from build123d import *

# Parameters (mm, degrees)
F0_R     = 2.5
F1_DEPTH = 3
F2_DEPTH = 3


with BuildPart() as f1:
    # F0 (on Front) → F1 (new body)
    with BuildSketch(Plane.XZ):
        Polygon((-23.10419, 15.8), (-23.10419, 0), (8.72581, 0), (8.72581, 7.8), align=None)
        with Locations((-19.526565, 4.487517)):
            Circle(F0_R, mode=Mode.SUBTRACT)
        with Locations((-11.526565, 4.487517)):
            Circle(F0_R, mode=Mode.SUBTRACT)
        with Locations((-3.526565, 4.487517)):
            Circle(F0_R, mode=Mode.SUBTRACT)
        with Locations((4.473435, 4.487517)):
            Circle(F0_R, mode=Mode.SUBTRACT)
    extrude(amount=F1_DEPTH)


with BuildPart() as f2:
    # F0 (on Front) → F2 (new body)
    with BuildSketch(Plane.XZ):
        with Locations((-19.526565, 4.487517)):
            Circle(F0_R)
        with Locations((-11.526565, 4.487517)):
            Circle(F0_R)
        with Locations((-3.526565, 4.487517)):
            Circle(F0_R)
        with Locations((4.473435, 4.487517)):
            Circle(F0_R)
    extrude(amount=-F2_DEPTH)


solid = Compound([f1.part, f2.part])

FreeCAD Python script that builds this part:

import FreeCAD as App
import Part
import Sketcher


def add_polygon(sketch, points):
    """Adds a closed chain of lines whose ends are joined by coincident constraints."""
    first, n = sketch.GeometryCount, len(points)
    for a, b in zip(points, points[1:] + points[:1]):
        sketch.addGeometry(Part.LineSegment(App.Vector(*a, 0), App.Vector(*b, 0)), False)
    for i in range(n):
        sketch.addConstraint(Sketcher.Constraint("Coincident", first + i, 2, first + (i + 1) % n, 1))

doc = App.newDocument("Part")
body = doc.addObject("PartDesign::Body", "Body")

# Sketch on XZ plane
sketch1 = body.newObject("Sketcher::SketchObject", "Sketch")
sketch1.AttachmentSupport = (doc.getObject("XZ_Plane"), [""])
sketch1.MapMode = "FlatFace"
add_polygon(sketch1, [(-23.1, 15.8), (-23.1, 0), (8.7, 0), (8.7, 7.8)])  # lines 0-3
sketch1.addGeometry(Part.Circle(App.Vector(-19.5, 4.5, 0), App.Vector(0, 0, 1), 2.5), False)  # 4
sketch1.addGeometry(Part.Circle(App.Vector(-11.5, 4.5, 0), App.Vector(0, 0, 1), 2.5), False)  # 5
sketch1.addGeometry(Part.Circle(App.Vector(-3.5, 4.5, 0), App.Vector(0, 0, 1), 2.5), False)  # 6
sketch1.addGeometry(Part.Circle(App.Vector(4.5, 4.5, 0), App.Vector(0, 0, 1), 2.5), False)  # 7
sketch1.addConstraint([
    Sketcher.Constraint("Vertical", 0),
    Sketcher.Constraint("Horizontal", 1),
    Sketcher.Constraint("Vertical", 2),
    Sketcher.Constraint("Equal", 4, 5),
    Sketcher.Constraint("Equal", 5, 6),
    Sketcher.Constraint("Equal", 6, 7),
    Sketcher.Constraint("PointOnObject", 0, 2, -1),
    Sketcher.Constraint("Horizontal", 4, 3, 5, 3),
    Sketcher.Constraint("Horizontal", 5, 3, 6, 3),
    Sketcher.Constraint("Horizontal", 6, 3, 7, 3),
    Sketcher.Constraint("Diameter", 4, 5.0),
    Sketcher.Constraint("DistanceY", 0, 2, 0, 1, 15.8),
    Sketcher.Constraint("DistanceY", 2, 1, 2, 2, 7.8),
    Sketcher.Constraint("DistanceX", 4, 3, 5, 3, 8.0),
    Sketcher.Constraint("DistanceX", 5, 3, 6, 3, 8.0),
    Sketcher.Constraint("DistanceX", 6, 3, 7, 3, 8.0),
    Sketcher.Constraint("DistanceX", 1, 1, 1, 2, 31.83),
    Sketcher.Constraint("DistanceX", 0, 2, -1, 1, 23.10419),
    Sketcher.Constraint("DistanceX", 4, 3, -1, 1, 19.526565),
    Sketcher.Constraint("DistanceY", -1, 1, 4, 3, 4.487517),
])
pad1 = body.newObject("PartDesign::Pad", "Pad")
pad1.Profile = sketch1
pad1.Length = 3
body2 = doc.addObject("PartDesign::Body", "Body001")
body2.AllowCompound = True

# Sketch on XZ plane
sketch2 = body2.newObject("Sketcher::SketchObject", "Sketch001")
sketch2.AttachmentSupport = (doc.getObject("XZ_Plane001"), [""])
sketch2.MapMode = "FlatFace"
sketch2.addGeometry([
    Part.Circle(App.Vector(-19.5, 4.5, 0), App.Vector(0, 0, 1), 2.5),
    Part.Circle(App.Vector(-11.5, 4.5, 0), App.Vector(0, 0, 1), 2.5),
    Part.Circle(App.Vector(-3.5, 4.5, 0), App.Vector(0, 0, 1), 2.5),
    Part.Circle(App.Vector(4.5, 4.5, 0), App.Vector(0, 0, 1), 2.5),
], False)
sketch2.addConstraint([
    Sketcher.Constraint("Equal", 0, 1),
    Sketcher.Constraint("Equal", 1, 2),
    Sketcher.Constraint("Equal", 2, 3),
    Sketcher.Constraint("Horizontal", 0, 3, 1, 3),
    Sketcher.Constraint("Horizontal", 1, 3, 2, 3),
    Sketcher.Constraint("Horizontal", 2, 3, 3, 3),
    Sketcher.Constraint("Diameter", 0, 5.0),
    Sketcher.Constraint("DistanceX", 0, 3, 1, 3, 8.0),
    Sketcher.Constraint("DistanceX", 1, 3, 2, 3, 8.0),
    Sketcher.Constraint("DistanceX", 2, 3, 3, 3, 8.0),
    Sketcher.Constraint("DistanceX", 0, 3, -1, 1, 19.526565),
    Sketcher.Constraint("DistanceY", -1, 1, 0, 3, 4.487517),
])
pad2 = body2.newObject("PartDesign::Pad", "Pad001")
pad2.Profile = sketch2
pad2.Length = 3
pad2.Reversed = True

doc.recompute()
